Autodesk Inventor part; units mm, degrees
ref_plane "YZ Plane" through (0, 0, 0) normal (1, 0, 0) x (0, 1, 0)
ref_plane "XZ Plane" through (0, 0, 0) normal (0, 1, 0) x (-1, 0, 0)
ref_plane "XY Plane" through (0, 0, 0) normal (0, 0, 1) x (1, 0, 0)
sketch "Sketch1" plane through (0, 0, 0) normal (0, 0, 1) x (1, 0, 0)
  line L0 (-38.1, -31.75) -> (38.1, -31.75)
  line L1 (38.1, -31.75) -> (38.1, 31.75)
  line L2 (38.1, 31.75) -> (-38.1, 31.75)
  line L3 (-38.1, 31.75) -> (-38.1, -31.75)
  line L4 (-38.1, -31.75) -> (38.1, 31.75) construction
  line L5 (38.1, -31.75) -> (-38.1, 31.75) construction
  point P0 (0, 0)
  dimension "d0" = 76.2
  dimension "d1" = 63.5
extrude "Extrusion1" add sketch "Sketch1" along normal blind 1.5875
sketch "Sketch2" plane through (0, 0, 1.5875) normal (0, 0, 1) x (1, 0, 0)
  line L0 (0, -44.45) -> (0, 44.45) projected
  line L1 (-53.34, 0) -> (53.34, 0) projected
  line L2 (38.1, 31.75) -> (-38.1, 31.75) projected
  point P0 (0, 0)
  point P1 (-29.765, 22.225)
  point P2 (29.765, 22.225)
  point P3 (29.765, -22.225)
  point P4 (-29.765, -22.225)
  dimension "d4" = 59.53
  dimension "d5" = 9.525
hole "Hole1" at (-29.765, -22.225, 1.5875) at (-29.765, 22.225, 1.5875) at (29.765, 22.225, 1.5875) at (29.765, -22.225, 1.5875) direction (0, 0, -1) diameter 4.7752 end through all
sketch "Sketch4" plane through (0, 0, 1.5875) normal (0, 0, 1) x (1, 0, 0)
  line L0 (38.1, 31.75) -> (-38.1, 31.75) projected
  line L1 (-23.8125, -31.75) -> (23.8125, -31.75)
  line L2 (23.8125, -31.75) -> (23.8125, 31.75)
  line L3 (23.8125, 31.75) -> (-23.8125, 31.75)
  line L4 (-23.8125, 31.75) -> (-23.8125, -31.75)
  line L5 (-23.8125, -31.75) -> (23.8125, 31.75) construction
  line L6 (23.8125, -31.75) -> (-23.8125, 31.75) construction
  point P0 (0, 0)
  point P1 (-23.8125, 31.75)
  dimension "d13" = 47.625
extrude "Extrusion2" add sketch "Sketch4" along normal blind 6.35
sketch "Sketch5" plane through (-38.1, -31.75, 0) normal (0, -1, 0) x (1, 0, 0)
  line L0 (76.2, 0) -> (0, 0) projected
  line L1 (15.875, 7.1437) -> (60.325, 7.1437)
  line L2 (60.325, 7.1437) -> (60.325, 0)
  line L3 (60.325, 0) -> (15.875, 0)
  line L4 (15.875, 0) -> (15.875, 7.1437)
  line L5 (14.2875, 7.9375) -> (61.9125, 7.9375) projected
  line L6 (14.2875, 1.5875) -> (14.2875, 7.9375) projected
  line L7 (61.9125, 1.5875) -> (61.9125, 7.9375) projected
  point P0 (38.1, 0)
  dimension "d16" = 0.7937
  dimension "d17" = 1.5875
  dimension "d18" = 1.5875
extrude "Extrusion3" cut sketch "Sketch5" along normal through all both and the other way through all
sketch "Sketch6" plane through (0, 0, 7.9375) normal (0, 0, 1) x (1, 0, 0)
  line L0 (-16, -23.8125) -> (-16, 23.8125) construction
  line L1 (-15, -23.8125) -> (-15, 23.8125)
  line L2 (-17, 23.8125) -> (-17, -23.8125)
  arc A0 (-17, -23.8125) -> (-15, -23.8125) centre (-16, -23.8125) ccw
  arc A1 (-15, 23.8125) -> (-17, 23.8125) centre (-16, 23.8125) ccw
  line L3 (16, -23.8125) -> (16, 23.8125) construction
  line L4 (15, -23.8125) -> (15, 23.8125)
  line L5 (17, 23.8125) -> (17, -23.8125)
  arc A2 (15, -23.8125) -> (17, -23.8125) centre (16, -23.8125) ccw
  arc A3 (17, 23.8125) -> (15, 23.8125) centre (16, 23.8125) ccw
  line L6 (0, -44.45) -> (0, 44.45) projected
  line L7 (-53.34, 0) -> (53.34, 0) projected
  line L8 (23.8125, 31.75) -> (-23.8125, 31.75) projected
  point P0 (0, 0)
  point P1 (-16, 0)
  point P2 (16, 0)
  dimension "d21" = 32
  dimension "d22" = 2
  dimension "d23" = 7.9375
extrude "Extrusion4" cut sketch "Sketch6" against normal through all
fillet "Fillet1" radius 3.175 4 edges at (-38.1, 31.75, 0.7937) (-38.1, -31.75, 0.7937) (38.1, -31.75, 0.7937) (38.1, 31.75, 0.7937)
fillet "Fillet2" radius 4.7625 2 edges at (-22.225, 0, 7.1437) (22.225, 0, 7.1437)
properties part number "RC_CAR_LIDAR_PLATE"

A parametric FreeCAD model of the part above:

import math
import FreeCAD as App
import Part
import Sketcher

V = App.Vector
Q = App.Units.Quantity


def edges_at(feature, points):
    """Names of the edges that pass closest to the given points."""
    edges = feature.Shape.Edges
    near = lambda p: min(range(len(edges)), key=lambda i: edges[i].distToShape(Part.Vertex(*p))[0])
    return sorted({f"Edge{near(p) + 1}" for p in points})


def add_polygon(sketch, points):
    """Adds a closed chain of lines whose ends are joined by coincident constraints."""
    first, n = sketch.GeometryCount, len(points)
    for a, b in zip(points, points[1:] + points[:1]):
        sketch.addGeometry(Part.LineSegment(App.Vector(*a, 0), App.Vector(*b, 0)), False)
    for i in range(n):
        sketch.addConstraint(Sketcher.Constraint("Coincident", first + i, 2, first + (i + 1) % n, 1))

doc = App.newDocument("Part")
body = doc.addObject("PartDesign::Body", "Body")

sketch1 = body.newObject("Sketcher::SketchObject", "Sketch")
sketch1.AttachmentSupport = (doc.getObject("XY_Plane"), [""])
sketch1.MapMode = "FlatFace"
add_polygon(sketch1, [(-38, 32), (-38, -32), (38, -32), (38, 32)])
sketch1.addConstraint(Sketcher.Constraint("Vertical", 0))
sketch1.addConstraint(Sketcher.Constraint("Horizontal", 1))
sketch1.addConstraint(Sketcher.Constraint("Vertical", 2))
sketch1.addConstraint(Sketcher.Constraint("Horizontal", 3))
sketch1.addConstraint(Sketcher.Constraint("Symmetric", 0, 2, 2, 2, -1, 1))
sketch1.addConstraint(Sketcher.Constraint("DistanceX", 1, 1, 1, 2, Q("3 in")))
sketch1.addConstraint(Sketcher.Constraint("DistanceY", 0, 2, 0, 1, Q("2.5 in")))
pad1 = body.newObject("PartDesign::Pad", "Pad")
pad1.Profile = sketch1
pad1.Length = Q("0.0625 in")

sketch2 = body.newObject("Sketcher::SketchObject", "Sketch001")
sketch2.AttachmentSupport = (doc.getObject("XY_Plane"), [""])
sketch2.MapMode = "FlatFace"
sketch2.AttachmentOffset = App.Placement(V(0, 0, 0.0625 * 25.4), App.Rotation())
sketch2.addGeometry(Part.Circle(V(-29.8, -22.2, 0), V(0, 0, 1), 2.4), False)
sketch2.addGeometry(Part.Circle(V(-29.8, 22.2, 0), V(0, 0, 1), 2.4), False)
sketch2.addGeometry(Part.Circle(V(29.8, 22.2, 0), V(0, 0, 1), 2.4), False)
sketch2.addGeometry(Part.Circle(V(29.8, -22.2, 0), V(0, 0, 1), 2.4), False)
sketch2.addConstraint(Sketcher.Constraint("Equal", 0, 1))
sketch2.addConstraint(Sketcher.Constraint("Equal", 1, 2))
sketch2.addConstraint(Sketcher.Constraint("Equal", 2, 3))
sketch2.addConstraint(Sketcher.Constraint("Symmetric", 0, 3, 2, 3, -1, 1))
sketch2.addConstraint(Sketcher.Constraint("Symmetric", 1, 3, 3, 3, -1, 1))
sketch2.addConstraint(Sketcher.Constraint("Symmetric", 1, 3, 2, 3, -2))
sketch2.addConstraint(Sketcher.Constraint("Diameter", 0, Q("0.188 in")))
sketch2.addConstraint(Sketcher.Constraint("DistanceY", 0, 3, 1, 3, Q("1.75 in")))
sketch2.addConstraint(Sketcher.Constraint("DistanceX", 1, 3, 2, 3, Q("2.3437 in")))
doc.recompute()
hole = body.newObject("PartDesign::Hole", "Hole")
hole.Profile = sketch2
hole.ThreadType = "None"
hole.Diameter = Q("0.188 in")
hole.DepthType = "ThroughAll"

sketch3 = body.newObject("Sketcher::SketchObject", "Sketch002")
sketch3.AttachmentSupport = (doc.getObject("XY_Plane"), [""])
sketch3.MapMode = "FlatFace"
sketch3.AttachmentOffset = App.Placement(V(0, 0, 0.0625 * 25.4), App.Rotation())
add_polygon(sketch3, [(24, -32), (24, 32), (-24, 32), (-24, -32)])
sketch3.addConstraint(Sketcher.Constraint("Vertical", 0))
sketch3.addConstraint(Sketcher.Constraint("Horizontal", 1))
sketch3.addConstraint(Sketcher.Constraint("Vertical", 2))
sketch3.addConstraint(Sketcher.Constraint("Horizontal", 3))
sketch3.addConstraint(Sketcher.Constraint("Symmetric", 0, 2, 2, 2, -1, 1))
sketch3.addConstraint(Sketcher.Constraint("DistanceX", 1, 2, 1, 1, Q("1.875 in")))
sketch3.addConstraint(Sketcher.Constraint("DistanceY", 0, 1, 0, 2, Q("2.5 in")))
pad2 = body.newObject("PartDesign::Pad", "Pad001")
pad2.Profile = sketch3
pad2.Length = Q("0.25 in")

sketch4 = body.newObject("Sketcher::SketchObject", "Sketch003")
sketch4.AttachmentSupport = (doc.getObject("XZ_Plane"), [""])
sketch4.MapMode = "FlatFace"
sketch4.AttachmentOffset = App.Placement(V(0, 0, 1.25 * 25.4), App.Rotation())
add_polygon(sketch4, [(-22, 0), (22, 0), (22, 7), (-22, 7)])
sketch4.addConstraint(Sketcher.Constraint("Horizontal", 0))
sketch4.addConstraint(Sketcher.Constraint("Vertical", 1))
sketch4.addConstraint(Sketcher.Constraint("Horizontal", 2))
sketch4.addConstraint(Sketcher.Constraint("Vertical", 3))
sketch4.addConstraint(Sketcher.Constraint("Symmetric", 0, 2, 3, 2, -1, 1))
sketch4.addConstraint(Sketcher.Constraint("DistanceX", 0, 1, 0, 2, Q("1.75 in")))
sketch4.addConstraint(Sketcher.Constraint("DistanceY", 1, 1, 1, 2, Q("0.281248 in")))
pocket1 = body.newObject("PartDesign::Pocket", "Pocket")
pocket1.Profile = sketch4
pocket1.Type = "ThroughAll"
pocket1.Midplane = True

sketch5 = body.newObject("Sketcher::SketchObject", "Sketch004")
sketch5.AttachmentSupport = (doc.getObject("XY_Plane"), [""])
sketch5.MapMode = "FlatFace"
sketch5.AttachmentOffset = App.Placement(V(0, 0, 0.3125 * 25.4), App.Rotation())
sketch5.addGeometry(Part.ArcOfCircle(Part.Circle(V(-16, -23.8, 0), V(0, 0, 1), 1), math.radians(180), math.radians(360)), False)
sketch5.addGeometry(Part.LineSegment(V(-15, -23.8, 0), V(-15, 23.8, 0)), False)
sketch5.addGeometry(Part.ArcOfCircle(Part.Circle(V(-16, 23.8, 0), V(0, 0, 1), 1), math.radians(0), math.radians(180)), False)
sketch5.addGeometry(Part.LineSegment(V(-17, 23.8, 0), V(-17, -23.8, 0)), False)
sketch5.addGeometry(Part.LineSegment(V(15, 23.8, 0), V(15, -23.8, 0)), False)
sketch5.addGeometry(Part.ArcOfCircle(Part.Circle(V(16, -23.8, 0), V(0, 0, 1), 1), math.radians(180), math.radians(360)), False)
sketch5.addGeometry(Part.LineSegment(V(17, -23.8, 0), V(17, 23.8, 0)), False)
sketch5.addGeometry(Part.ArcOfCircle(Part.Circle(V(16, 23.8, 0), V(0, 0, 1), 1), math.radians(0), math.radians(180)), False)
sketch5.addConstraint(Sketcher.Constraint("Tangent", 0, 2, 1, 1))
sketch5.addConstraint(Sketcher.Constraint("Tangent", 1, 2, 2, 1))
sketch5.addConstraint(Sketcher.Constraint("Tangent", 2, 2, 3, 1))
sketch5.addConstraint(Sketcher.Constraint("Tangent", 3, 2, 0, 1))
sketch5.addConstraint(Sketcher.Constraint("Tangent", 4, 2, 5, 1))
sketch5.addConstraint(Sketcher.Constraint("Tangent", 5, 2, 6, 1))
sketch5.addConstraint(Sketcher.Constraint("Tangent", 6, 2, 7, 1))
sketch5.addConstraint(Sketcher.Constraint("Tangent", 7, 2, 4, 1))
sketch5.addConstraint(Sketcher.Constraint("Vertical", 1))
sketch5.addConstraint(Sketcher.Constraint("Vertical", 3))
sketch5.addConstraint(Sketcher.Constraint("Vertical", 4))
sketch5.addConstraint(Sketcher.Constraint("Vertical", 6))
sketch5.addConstraint(Sketcher.Constraint("Equal", 2, 5))
sketch5.addConstraint(Sketcher.Constraint("Symmetric", 2, 3, 5, 3, -1, 1))
sketch5.addConstraint(Sketcher.Constraint("Horizontal", 0, 3, 5, 3))
sketch5.addConstraint(Sketcher.Constraint("Horizontal", 2, 3, 7, 3))
sketch5.addConstraint(Sketcher.Constraint("Radius", 0, Q("1 mm")))
sketch5.addConstraint(Sketcher.Constraint("DistanceY", 1, 1, 1, 2, Q("1.875 in")))
sketch5.addConstraint(Sketcher.Constraint("DistanceX", 0, 3, 5, 3, Q("32 mm")))
pocket2 = body.newObject("PartDesign::Pocket", "Pocket001")
pocket2.Profile = sketch5
pocket2.Type = "ThroughAll"
doc.recompute()

fillet = body.newObject("PartDesign::Fillet", "Fillet")
fillet.Base = (pocket2, edges_at(pocket2, [
    (-38.1, 31.75, 0.794),
    (-38.1, -31.75, 0.794),
    (38.1, -31.75, 0.794),
    (38.1, 31.75, 0.794),
]))
fillet.Radius = Q("0.125 in")
doc.recompute()

fillet2 = body.newObject("PartDesign::Fillet", "Fillet001")
fillet2.Base = (fillet, edges_at(fillet, [(-22.225, 0, 7.144), (22.225, 0, 7.144)]))
fillet2.Radius = Q("0.1875 in")

doc.recompute()
